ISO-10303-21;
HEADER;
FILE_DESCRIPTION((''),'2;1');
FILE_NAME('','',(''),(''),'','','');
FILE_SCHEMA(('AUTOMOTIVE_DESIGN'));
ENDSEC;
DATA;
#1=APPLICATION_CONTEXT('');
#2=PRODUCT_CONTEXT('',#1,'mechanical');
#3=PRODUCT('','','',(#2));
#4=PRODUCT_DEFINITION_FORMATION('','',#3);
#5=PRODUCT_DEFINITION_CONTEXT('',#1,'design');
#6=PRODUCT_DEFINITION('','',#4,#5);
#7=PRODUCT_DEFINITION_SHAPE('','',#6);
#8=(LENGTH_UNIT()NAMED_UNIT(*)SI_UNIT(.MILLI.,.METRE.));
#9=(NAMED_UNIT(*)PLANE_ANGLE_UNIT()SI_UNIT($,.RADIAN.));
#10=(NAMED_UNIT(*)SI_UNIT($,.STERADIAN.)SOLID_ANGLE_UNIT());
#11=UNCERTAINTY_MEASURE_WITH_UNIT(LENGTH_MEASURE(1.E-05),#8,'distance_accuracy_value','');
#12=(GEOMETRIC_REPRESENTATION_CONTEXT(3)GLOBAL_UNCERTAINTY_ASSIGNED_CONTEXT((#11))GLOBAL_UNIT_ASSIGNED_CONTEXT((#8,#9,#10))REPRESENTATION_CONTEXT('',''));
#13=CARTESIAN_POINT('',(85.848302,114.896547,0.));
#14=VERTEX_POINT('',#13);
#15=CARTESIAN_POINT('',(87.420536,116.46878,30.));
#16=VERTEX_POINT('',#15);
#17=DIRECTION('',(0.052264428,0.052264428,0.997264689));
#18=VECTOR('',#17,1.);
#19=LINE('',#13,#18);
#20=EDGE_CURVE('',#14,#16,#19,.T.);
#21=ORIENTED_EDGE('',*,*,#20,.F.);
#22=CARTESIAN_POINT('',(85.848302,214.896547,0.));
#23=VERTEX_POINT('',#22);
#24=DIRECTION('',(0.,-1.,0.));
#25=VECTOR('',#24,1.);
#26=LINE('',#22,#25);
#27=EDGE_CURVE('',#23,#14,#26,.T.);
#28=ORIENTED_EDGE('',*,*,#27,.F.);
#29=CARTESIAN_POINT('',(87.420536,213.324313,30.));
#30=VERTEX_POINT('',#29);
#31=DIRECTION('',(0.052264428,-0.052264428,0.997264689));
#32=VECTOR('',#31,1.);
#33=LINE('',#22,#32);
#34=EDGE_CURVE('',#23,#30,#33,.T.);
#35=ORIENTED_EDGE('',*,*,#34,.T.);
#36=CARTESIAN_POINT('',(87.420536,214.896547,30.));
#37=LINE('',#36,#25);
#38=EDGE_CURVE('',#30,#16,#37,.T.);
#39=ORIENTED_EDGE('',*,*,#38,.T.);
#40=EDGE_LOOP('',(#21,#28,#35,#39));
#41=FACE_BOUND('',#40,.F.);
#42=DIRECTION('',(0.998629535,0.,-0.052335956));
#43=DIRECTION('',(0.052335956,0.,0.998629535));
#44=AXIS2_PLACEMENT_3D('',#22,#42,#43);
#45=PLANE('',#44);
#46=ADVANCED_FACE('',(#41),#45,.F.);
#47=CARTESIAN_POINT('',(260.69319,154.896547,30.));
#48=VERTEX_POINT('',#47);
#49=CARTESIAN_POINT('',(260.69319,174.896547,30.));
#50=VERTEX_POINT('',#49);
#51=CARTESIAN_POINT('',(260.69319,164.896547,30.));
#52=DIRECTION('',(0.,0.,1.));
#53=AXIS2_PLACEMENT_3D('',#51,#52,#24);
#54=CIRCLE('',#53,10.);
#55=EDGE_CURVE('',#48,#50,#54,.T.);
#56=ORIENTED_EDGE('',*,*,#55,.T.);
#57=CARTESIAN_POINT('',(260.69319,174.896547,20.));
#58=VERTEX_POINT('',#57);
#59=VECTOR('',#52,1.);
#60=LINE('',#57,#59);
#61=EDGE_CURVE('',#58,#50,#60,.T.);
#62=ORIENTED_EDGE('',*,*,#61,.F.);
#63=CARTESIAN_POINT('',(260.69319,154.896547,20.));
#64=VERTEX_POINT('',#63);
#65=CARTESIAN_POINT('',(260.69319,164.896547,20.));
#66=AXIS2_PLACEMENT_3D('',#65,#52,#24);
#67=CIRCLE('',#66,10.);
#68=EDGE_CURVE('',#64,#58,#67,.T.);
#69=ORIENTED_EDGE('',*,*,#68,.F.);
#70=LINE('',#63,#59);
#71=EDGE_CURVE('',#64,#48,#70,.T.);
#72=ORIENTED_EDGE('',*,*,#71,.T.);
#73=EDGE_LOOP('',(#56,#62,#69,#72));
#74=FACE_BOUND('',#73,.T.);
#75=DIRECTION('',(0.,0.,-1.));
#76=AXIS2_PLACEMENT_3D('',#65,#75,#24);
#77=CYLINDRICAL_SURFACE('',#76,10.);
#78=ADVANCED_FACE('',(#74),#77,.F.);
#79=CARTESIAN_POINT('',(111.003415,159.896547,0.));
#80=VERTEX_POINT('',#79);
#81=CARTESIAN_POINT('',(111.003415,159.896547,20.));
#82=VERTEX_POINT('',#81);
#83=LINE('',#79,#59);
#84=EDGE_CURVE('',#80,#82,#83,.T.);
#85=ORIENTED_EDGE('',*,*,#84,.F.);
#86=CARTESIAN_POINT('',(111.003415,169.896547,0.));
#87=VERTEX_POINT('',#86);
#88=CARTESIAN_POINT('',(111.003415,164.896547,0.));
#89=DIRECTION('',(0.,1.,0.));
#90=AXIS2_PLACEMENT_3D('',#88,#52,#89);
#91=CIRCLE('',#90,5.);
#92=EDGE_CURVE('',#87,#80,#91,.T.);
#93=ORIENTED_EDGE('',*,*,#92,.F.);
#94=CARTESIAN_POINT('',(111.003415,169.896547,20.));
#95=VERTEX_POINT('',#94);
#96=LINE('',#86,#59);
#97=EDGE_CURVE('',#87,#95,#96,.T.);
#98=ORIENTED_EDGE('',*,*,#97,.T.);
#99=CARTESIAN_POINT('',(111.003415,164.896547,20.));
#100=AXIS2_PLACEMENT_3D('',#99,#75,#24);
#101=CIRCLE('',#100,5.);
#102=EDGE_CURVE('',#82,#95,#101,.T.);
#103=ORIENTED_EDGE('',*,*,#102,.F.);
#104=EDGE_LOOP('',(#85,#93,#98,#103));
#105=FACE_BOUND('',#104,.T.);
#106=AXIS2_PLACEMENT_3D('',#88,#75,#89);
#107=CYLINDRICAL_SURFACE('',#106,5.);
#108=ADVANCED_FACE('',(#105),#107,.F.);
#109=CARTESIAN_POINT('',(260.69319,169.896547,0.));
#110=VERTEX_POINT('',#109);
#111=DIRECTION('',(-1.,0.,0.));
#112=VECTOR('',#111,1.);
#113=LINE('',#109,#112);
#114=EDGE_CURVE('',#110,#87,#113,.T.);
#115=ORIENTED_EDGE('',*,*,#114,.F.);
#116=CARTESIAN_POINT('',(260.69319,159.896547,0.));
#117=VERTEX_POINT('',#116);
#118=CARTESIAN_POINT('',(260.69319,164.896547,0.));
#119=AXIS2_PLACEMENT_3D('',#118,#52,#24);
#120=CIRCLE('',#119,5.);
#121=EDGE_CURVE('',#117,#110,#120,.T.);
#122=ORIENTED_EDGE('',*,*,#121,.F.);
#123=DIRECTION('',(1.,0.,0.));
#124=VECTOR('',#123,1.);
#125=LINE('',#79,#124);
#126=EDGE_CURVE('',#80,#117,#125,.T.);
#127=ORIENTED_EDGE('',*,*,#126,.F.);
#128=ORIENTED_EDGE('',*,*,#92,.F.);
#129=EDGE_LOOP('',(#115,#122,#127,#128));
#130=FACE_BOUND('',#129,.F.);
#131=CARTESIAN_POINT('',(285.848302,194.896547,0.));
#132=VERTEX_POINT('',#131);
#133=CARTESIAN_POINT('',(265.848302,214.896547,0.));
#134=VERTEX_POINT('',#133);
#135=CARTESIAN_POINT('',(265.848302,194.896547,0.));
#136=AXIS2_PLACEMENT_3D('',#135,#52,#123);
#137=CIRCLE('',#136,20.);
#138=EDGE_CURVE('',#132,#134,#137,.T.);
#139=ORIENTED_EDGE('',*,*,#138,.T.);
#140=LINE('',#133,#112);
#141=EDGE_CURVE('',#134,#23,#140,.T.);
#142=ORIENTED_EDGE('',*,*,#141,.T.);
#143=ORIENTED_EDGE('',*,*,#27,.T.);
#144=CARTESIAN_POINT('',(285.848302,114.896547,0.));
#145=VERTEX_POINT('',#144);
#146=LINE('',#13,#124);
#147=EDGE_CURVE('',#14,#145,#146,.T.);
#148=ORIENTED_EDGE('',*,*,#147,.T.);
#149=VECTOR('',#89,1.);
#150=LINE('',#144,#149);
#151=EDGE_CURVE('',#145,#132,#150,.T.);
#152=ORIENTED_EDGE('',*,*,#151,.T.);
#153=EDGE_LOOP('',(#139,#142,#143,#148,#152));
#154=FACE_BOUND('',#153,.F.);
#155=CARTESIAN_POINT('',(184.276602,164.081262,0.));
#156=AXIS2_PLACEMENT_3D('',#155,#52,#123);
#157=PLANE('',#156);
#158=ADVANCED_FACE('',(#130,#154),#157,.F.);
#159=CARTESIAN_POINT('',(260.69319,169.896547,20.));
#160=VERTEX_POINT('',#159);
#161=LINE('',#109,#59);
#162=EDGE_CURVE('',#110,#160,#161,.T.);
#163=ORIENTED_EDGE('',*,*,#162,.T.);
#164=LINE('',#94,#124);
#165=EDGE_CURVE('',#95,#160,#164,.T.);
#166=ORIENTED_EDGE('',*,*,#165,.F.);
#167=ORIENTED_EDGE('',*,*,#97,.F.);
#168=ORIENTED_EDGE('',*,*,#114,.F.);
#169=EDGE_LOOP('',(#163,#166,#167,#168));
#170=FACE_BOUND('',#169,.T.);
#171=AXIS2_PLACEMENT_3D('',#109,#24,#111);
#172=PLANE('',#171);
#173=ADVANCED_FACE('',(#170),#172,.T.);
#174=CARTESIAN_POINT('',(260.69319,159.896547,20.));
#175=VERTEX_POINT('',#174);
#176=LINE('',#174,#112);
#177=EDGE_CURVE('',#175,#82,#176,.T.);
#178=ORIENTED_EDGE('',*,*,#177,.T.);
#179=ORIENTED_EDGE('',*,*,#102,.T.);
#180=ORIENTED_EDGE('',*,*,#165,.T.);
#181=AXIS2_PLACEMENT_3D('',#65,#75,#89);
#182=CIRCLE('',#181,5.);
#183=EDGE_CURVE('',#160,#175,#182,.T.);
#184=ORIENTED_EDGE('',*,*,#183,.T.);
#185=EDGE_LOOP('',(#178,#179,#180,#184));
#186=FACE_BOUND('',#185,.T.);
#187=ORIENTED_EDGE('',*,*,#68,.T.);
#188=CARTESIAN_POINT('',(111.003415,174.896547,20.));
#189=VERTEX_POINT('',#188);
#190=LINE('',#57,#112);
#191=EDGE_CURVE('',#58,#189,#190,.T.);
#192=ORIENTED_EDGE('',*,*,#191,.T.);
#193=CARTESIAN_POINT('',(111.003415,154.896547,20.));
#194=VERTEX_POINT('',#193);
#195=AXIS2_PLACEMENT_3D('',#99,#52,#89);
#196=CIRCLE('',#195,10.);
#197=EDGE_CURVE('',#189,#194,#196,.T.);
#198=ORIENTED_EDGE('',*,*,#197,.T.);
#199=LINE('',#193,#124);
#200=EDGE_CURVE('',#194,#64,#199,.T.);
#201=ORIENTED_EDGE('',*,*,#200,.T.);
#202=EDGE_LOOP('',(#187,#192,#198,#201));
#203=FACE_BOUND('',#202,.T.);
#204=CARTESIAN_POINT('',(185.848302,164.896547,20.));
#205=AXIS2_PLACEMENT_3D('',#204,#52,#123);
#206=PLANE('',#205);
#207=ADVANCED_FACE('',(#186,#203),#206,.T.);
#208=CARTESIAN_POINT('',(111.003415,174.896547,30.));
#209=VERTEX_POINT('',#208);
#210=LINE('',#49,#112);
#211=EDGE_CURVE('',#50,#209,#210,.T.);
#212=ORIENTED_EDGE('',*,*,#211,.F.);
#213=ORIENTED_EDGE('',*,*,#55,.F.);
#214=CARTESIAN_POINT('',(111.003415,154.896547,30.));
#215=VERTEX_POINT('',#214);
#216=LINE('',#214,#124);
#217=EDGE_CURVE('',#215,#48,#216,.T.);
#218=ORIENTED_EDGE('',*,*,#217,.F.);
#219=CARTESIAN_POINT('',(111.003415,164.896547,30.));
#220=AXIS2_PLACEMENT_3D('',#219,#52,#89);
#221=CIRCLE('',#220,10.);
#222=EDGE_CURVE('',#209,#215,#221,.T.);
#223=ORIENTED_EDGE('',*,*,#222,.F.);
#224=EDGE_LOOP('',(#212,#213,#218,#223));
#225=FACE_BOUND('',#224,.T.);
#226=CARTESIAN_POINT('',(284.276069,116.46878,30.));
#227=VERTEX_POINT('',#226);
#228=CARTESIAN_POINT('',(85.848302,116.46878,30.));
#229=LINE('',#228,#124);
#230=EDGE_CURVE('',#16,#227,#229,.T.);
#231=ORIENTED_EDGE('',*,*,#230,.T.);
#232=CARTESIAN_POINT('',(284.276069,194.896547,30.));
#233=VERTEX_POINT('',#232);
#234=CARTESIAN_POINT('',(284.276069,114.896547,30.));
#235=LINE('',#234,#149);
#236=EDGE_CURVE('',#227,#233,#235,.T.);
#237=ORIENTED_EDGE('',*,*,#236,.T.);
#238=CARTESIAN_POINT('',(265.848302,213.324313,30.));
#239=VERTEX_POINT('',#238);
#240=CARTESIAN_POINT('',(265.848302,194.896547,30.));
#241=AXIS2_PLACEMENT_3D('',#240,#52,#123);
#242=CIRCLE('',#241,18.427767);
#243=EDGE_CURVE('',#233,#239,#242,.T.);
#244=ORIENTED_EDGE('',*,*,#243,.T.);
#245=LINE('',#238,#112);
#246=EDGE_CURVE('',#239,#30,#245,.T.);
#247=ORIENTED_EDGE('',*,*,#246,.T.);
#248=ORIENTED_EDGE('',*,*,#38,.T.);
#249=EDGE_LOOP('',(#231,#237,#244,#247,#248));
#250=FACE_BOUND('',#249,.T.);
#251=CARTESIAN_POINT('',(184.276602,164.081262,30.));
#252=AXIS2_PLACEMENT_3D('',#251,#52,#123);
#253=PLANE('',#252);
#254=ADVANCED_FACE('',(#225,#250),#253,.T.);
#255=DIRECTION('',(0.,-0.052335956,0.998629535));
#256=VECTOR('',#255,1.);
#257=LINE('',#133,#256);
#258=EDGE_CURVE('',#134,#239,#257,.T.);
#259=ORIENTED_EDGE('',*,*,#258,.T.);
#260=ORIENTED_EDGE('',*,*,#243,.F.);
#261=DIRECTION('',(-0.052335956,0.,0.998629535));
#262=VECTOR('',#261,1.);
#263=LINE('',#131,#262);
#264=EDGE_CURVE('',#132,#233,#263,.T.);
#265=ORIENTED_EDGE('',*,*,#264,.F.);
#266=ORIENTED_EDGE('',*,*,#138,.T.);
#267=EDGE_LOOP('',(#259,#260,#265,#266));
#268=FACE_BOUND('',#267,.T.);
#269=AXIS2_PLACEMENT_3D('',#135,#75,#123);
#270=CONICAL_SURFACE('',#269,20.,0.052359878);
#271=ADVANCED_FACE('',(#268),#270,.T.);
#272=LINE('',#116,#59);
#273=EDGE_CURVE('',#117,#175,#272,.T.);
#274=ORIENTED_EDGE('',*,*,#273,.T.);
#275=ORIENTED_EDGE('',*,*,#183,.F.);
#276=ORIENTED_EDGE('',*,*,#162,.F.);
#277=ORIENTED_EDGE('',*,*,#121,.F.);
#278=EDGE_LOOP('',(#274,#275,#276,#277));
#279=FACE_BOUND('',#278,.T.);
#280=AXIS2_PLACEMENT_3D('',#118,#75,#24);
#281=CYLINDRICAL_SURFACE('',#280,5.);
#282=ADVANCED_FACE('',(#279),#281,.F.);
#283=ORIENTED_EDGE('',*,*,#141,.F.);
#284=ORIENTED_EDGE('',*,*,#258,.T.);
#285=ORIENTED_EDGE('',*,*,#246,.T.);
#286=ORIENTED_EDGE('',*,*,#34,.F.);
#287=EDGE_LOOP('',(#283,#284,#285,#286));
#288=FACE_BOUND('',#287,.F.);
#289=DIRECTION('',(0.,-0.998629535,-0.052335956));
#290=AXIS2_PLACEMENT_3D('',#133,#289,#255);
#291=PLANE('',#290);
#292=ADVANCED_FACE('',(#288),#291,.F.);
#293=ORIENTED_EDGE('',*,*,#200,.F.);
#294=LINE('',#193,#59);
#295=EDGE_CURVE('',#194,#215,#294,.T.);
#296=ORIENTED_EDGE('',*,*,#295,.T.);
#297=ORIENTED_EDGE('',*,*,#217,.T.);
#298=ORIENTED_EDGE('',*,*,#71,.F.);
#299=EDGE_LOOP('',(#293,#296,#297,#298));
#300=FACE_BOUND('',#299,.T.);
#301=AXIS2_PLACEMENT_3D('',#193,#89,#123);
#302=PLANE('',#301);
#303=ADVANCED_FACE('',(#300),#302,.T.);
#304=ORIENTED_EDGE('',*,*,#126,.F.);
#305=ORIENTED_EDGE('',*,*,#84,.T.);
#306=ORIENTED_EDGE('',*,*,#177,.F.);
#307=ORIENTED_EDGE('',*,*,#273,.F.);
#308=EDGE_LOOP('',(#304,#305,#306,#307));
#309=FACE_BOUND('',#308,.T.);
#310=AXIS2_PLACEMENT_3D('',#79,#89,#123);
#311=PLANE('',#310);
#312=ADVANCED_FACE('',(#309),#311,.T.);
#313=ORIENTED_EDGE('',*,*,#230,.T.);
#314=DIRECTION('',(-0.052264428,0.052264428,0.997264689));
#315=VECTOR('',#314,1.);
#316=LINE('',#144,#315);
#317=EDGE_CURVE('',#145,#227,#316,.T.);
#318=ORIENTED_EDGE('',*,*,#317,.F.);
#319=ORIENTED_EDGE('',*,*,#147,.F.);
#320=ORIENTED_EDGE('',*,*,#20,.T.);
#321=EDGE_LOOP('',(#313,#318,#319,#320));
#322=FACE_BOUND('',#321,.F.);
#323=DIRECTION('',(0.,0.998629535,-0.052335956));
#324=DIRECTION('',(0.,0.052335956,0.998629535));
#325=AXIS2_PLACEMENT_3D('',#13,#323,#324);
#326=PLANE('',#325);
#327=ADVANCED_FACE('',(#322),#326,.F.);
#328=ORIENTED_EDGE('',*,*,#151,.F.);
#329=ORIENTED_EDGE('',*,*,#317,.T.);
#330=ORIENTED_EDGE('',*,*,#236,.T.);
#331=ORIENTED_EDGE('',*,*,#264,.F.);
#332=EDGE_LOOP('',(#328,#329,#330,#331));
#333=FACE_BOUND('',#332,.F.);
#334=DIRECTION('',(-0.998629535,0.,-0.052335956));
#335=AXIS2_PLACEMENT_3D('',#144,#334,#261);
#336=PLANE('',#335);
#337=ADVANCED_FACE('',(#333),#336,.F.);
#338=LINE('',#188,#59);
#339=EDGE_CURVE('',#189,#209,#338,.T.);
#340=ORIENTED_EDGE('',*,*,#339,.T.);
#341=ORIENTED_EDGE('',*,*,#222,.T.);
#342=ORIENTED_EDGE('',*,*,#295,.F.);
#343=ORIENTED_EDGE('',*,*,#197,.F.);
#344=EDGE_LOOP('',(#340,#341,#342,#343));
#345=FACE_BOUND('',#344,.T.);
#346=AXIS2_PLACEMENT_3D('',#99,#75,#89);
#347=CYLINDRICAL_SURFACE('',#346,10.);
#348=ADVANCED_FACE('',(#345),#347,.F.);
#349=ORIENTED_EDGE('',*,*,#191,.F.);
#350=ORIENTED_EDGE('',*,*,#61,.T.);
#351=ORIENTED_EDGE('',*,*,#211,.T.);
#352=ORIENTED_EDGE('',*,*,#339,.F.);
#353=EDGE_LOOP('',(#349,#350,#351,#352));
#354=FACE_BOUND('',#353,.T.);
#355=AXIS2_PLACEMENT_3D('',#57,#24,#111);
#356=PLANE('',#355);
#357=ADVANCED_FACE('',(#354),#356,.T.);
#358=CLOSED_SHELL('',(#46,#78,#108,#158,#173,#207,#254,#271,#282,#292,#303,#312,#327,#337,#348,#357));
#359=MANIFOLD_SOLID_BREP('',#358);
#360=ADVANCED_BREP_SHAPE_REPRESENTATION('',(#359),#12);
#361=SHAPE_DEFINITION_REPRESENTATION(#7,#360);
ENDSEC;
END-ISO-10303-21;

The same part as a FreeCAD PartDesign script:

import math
import FreeCAD as App
import Part
import Sketcher

doc = App.newDocument("Part")
params = doc.addObject("Spreadsheet::Sheet", "Params")
for row, (alias, value) in enumerate([
    ("sketch1_radius", "20 mm"),
    ("sketch1_width", "180 mm"),
    ("sketch1_height", "100 mm"),
    ("pad1_length", "30 mm"),
    ("pad1_taper", "-3 deg"),
    ("sketch2_radius", "5 mm"),
    ("pocket1_length", "30 mm"),
    ("sketch3_radius", "10 mm"),
    ("sketch3_radius2", "5 mm"),
    ("pocket2_length", "10 mm"),
], start=1):
    params.set(f"A{row}", alias)
    params.set(f"B{row}", "=" + value)
    params.setAlias(f"B{row}", alias)

body = doc.addObject("PartDesign::Body", "Body")

# Sketch on XY plane
sketch1 = doc.addObject("Sketcher::SketchObject", "Sketch")
body.addObject(sketch1)
sketch1.AttachmentSupport = (doc.XY_Plane, [""])
sketch1.MapMode = "FlatFace"
sketch1.addGeometry(Part.LineSegment(App.Vector(265.848302, 214.896547, 0), App.Vector(85.848302, 214.896547, 0)), False)
sketch1.addGeometry(Part.LineSegment(App.Vector(85.848302, 214.896547, 0), App.Vector(85.848302, 114.896547, 0)), False)
sketch1.addGeometry(Part.LineSegment(App.Vector(85.848302, 114.896547, 0), App.Vector(285.848302, 114.896547, 0)), False)
sketch1.addGeometry(Part.LineSegment(App.Vector(285.848302, 114.896547, 0), App.Vector(285.848302, 194.896547, 0)), False)
sketch1.addGeometry(Part.ArcOfCircle(Part.Circle(App.Vector(265.848302, 194.896547, 0), App.Vector(0, 0, 1), 20), math.radians(0), math.radians(90)), False)
sketch1.addConstraint(Sketcher.Constraint("Coincident", 0, 2, 1, 1))
sketch1.addConstraint(Sketcher.Constraint("Coincident", 1, 2, 2, 1))
sketch1.addConstraint(Sketcher.Constraint("Coincident", 2, 2, 3, 1))
sketch1.addConstraint(Sketcher.Constraint("Tangent", 3, 2, 4, 1))
sketch1.addConstraint(Sketcher.Constraint("Tangent", 4, 2, 0, 1))
sketch1.addConstraint(Sketcher.Constraint("Horizontal", 0))
sketch1.addConstraint(Sketcher.Constraint("Vertical", 1))
sketch1.addConstraint(Sketcher.Constraint("Horizontal", 2))
sketch1.addConstraint(Sketcher.Constraint("Vertical", 3))
sketch1.addConstraint(Sketcher.Constraint("Radius", 4, 20.0))
sketch1.addConstraint(Sketcher.Constraint("DistanceX", 0, 2, 0, 1, 180.0))
sketch1.addConstraint(Sketcher.Constraint("DistanceY", 1, 2, 1, 1, 100.0))
sketch1.addConstraint(Sketcher.Constraint("DistanceX", -1, 1, 4, 3, 265.848302))
sketch1.addConstraint(Sketcher.Constraint("DistanceY", -1, 1, 4, 3, 194.896547))
sketch1.setExpression("Constraints[9]", "Params.sketch1_radius")
sketch1.setExpression("Constraints[10]", "Params.sketch1_width")
sketch1.setExpression("Constraints[11]", "Params.sketch1_height")
pad1 = doc.addObject("PartDesign::Pad", "Pad")
body.addObject(pad1)
pad1.Profile = sketch1
pad1.setExpression("Length", "Params.pad1_length")
pad1.setExpression("TaperAngle", "Params.pad1_taper")

# Sketch on XY plane
sketch2 = doc.addObject("Sketcher::SketchObject", "Sketch001")
body.addObject(sketch2)
sketch2.AttachmentSupport = (doc.XY_Plane, [""])
sketch2.MapMode = "FlatFace"
sketch2.addGeometry(Part.ArcOfCircle(Part.Circle(App.Vector(111.003415, 164.896547, 0), App.Vector(0, 0, 1), 5), math.radians(90), math.radians(270)), False)
sketch2.addGeometry(Part.LineSegment(App.Vector(111.003415, 159.896547, 0), App.Vector(260.69319, 159.896547, 0)), False)
sketch2.addGeometry(Part.ArcOfCircle(Part.Circle(App.Vector(260.69319, 164.896547, 0), App.Vector(0, 0, 1), 5), math.radians(-90), math.radians(90)), False)
sketch2.addGeometry(Part.LineSegment(App.Vector(260.69319, 169.896547, 0), App.Vector(111.003415, 169.896547, 0)), False)
sketch2.addConstraint(Sketcher.Constraint("Tangent", 0, 2, 1, 1))
sketch2.addConstraint(Sketcher.Constraint("Tangent", 1, 2, 2, 1))
sketch2.addConstraint(Sketcher.Constraint("Tangent", 2, 2, 3, 1))
sketch2.addConstraint(Sketcher.Constraint("Tangent", 3, 2, 0, 1))
sketch2.addConstraint(Sketcher.Constraint("Horizontal", 1))
sketch2.addConstraint(Sketcher.Constraint("Horizontal", 3))
sketch2.addConstraint(Sketcher.Constraint("Radius", 0, 5.0))
sketch2.addConstraint(Sketcher.Constraint("DistanceX", 1, 1, 1, 2, 149.689776))
sketch2.addConstraint(Sketcher.Constraint("DistanceX", -1, 1, 2, 3, 260.69319))
sketch2.addConstraint(Sketcher.Constraint("DistanceY", -1, 1, 0, 3, 164.896547))
sketch2.setExpression("Constraints[6]", "Params.sketch2_radius")
pocket1 = doc.addObject("PartDesign::Pocket", "Pocket")
body.addObject(pocket1)
pocket1.Profile = sketch2
pocket1.setExpression("Length", "Params.pocket1_length")
pocket1.Reversed = True

# Sketch on XY plane
sketch3 = doc.addObject("Sketcher::SketchObject", "Sketch002")
body.addObject(sketch3)
sketch3.AttachmentSupport = (doc.XY_Plane, [""])
sketch3.MapMode = "FlatFace"
sketch3.AttachmentOffset = App.Placement(App.Vector(0, 0, 20), App.Rotation())
sketch3.addGeometry(Part.ArcOfCircle(Part.Circle(App.Vector(111.003415, 164.896547, 0), App.Vector(0, 0, 1), 10), math.radians(90), math.radians(270)), False)
sketch3.addGeometry(Part.LineSegment(App.Vector(111.003415, 154.896547, 0), App.Vector(260.69319, 154.896547, 0)), False)
sketch3.addGeometry(Part.ArcOfCircle(Part.Circle(App.Vector(260.69319, 164.896547, 0), App.Vector(0, 0, 1), 10), math.radians(-90), math.radians(90)), False)
sketch3.addGeometry(Part.LineSegment(App.Vector(260.69319, 174.896547, 0), App.Vector(111.003415, 174.896547, 0)), False)
sketch3.addGeometry(Part.ArcOfCircle(Part.Circle(App.Vector(260.69319, 164.896547, 0), App.Vector(0, 0, 1), 5), math.radians(-90), math.radians(90)), False)
sketch3.addGeometry(Part.LineSegment(App.Vector(260.69319, 159.896547, 0), App.Vector(111.003415, 159.896547, 0)), False)
sketch3.addGeometry(Part.ArcOfCircle(Part.Circle(App.Vector(111.003415, 164.896547, 0), App.Vector(0, 0, 1), 5), math.radians(90), math.radians(270)), False)
sketch3.addGeometry(Part.LineSegment(App.Vector(111.003415, 169.896547, 0), App.Vector(260.69319, 169.896547, 0)), False)
sketch3.addConstraint(Sketcher.Constraint("Tangent", 0, 2, 1, 1))
sketch3.addConstraint(Sketcher.Constraint("Tangent", 1, 2, 2, 1))
sketch3.addConstraint(Sketcher.Constraint("Tangent", 2, 2, 3, 1))
sketch3.addConstraint(Sketcher.Constraint("Tangent", 3, 2, 0, 1))
sketch3.addConstraint(Sketcher.Constraint("Tangent", 4, 1, 5, 1))
sketch3.addConstraint(Sketcher.Constraint("Tangent", 5, 2, 6, 2))
sketch3.addConstraint(Sketcher.Constraint("Tangent", 6, 1, 7, 1))
sketch3.addConstraint(Sketcher.Constraint("Tangent", 7, 2, 4, 2))
sketch3.addConstraint(Sketcher.Constraint("Horizontal", 1))
sketch3.addConstraint(Sketcher.Constraint("Horizontal", 3))
sketch3.addConstraint(Sketcher.Constraint("Horizontal", 5))
sketch3.addConstraint(Sketcher.Constraint("Horizontal", 7))
sketch3.addConstraint(Sketcher.Constraint("Coincident", 4, 3, 2, 3))
sketch3.addConstraint(Sketcher.Constraint("Vertical", 6, 3, 0, 2))
sketch3.addConstraint(Sketcher.Constraint("Radius", 0, 10.0))
sketch3.addConstraint(Sketcher.Constraint("Radius", 4, 5.0))
sketch3.addConstraint(Sketcher.Constraint("DistanceX", 1, 1, 1, 2, 149.689776))
sketch3.addConstraint(Sketcher.Constraint("DistanceX", -1, 1, 2, 3, 260.69319))
sketch3.addConstraint(Sketcher.Constraint("DistanceY", -1, 1, 0, 3, 164.896547))
sketch3.setExpression("Constraints[14]", "Params.sketch3_radius")
sketch3.setExpression("Constraints[15]", "Params.sketch3_radius2")
pocket2 = doc.addObject("PartDesign::Pocket", "Pocket001")
body.addObject(pocket2)
pocket2.Profile = sketch3
pocket2.setExpression("Length", "Params.pocket2_length")
pocket2.Reversed = True

doc.recompute()
